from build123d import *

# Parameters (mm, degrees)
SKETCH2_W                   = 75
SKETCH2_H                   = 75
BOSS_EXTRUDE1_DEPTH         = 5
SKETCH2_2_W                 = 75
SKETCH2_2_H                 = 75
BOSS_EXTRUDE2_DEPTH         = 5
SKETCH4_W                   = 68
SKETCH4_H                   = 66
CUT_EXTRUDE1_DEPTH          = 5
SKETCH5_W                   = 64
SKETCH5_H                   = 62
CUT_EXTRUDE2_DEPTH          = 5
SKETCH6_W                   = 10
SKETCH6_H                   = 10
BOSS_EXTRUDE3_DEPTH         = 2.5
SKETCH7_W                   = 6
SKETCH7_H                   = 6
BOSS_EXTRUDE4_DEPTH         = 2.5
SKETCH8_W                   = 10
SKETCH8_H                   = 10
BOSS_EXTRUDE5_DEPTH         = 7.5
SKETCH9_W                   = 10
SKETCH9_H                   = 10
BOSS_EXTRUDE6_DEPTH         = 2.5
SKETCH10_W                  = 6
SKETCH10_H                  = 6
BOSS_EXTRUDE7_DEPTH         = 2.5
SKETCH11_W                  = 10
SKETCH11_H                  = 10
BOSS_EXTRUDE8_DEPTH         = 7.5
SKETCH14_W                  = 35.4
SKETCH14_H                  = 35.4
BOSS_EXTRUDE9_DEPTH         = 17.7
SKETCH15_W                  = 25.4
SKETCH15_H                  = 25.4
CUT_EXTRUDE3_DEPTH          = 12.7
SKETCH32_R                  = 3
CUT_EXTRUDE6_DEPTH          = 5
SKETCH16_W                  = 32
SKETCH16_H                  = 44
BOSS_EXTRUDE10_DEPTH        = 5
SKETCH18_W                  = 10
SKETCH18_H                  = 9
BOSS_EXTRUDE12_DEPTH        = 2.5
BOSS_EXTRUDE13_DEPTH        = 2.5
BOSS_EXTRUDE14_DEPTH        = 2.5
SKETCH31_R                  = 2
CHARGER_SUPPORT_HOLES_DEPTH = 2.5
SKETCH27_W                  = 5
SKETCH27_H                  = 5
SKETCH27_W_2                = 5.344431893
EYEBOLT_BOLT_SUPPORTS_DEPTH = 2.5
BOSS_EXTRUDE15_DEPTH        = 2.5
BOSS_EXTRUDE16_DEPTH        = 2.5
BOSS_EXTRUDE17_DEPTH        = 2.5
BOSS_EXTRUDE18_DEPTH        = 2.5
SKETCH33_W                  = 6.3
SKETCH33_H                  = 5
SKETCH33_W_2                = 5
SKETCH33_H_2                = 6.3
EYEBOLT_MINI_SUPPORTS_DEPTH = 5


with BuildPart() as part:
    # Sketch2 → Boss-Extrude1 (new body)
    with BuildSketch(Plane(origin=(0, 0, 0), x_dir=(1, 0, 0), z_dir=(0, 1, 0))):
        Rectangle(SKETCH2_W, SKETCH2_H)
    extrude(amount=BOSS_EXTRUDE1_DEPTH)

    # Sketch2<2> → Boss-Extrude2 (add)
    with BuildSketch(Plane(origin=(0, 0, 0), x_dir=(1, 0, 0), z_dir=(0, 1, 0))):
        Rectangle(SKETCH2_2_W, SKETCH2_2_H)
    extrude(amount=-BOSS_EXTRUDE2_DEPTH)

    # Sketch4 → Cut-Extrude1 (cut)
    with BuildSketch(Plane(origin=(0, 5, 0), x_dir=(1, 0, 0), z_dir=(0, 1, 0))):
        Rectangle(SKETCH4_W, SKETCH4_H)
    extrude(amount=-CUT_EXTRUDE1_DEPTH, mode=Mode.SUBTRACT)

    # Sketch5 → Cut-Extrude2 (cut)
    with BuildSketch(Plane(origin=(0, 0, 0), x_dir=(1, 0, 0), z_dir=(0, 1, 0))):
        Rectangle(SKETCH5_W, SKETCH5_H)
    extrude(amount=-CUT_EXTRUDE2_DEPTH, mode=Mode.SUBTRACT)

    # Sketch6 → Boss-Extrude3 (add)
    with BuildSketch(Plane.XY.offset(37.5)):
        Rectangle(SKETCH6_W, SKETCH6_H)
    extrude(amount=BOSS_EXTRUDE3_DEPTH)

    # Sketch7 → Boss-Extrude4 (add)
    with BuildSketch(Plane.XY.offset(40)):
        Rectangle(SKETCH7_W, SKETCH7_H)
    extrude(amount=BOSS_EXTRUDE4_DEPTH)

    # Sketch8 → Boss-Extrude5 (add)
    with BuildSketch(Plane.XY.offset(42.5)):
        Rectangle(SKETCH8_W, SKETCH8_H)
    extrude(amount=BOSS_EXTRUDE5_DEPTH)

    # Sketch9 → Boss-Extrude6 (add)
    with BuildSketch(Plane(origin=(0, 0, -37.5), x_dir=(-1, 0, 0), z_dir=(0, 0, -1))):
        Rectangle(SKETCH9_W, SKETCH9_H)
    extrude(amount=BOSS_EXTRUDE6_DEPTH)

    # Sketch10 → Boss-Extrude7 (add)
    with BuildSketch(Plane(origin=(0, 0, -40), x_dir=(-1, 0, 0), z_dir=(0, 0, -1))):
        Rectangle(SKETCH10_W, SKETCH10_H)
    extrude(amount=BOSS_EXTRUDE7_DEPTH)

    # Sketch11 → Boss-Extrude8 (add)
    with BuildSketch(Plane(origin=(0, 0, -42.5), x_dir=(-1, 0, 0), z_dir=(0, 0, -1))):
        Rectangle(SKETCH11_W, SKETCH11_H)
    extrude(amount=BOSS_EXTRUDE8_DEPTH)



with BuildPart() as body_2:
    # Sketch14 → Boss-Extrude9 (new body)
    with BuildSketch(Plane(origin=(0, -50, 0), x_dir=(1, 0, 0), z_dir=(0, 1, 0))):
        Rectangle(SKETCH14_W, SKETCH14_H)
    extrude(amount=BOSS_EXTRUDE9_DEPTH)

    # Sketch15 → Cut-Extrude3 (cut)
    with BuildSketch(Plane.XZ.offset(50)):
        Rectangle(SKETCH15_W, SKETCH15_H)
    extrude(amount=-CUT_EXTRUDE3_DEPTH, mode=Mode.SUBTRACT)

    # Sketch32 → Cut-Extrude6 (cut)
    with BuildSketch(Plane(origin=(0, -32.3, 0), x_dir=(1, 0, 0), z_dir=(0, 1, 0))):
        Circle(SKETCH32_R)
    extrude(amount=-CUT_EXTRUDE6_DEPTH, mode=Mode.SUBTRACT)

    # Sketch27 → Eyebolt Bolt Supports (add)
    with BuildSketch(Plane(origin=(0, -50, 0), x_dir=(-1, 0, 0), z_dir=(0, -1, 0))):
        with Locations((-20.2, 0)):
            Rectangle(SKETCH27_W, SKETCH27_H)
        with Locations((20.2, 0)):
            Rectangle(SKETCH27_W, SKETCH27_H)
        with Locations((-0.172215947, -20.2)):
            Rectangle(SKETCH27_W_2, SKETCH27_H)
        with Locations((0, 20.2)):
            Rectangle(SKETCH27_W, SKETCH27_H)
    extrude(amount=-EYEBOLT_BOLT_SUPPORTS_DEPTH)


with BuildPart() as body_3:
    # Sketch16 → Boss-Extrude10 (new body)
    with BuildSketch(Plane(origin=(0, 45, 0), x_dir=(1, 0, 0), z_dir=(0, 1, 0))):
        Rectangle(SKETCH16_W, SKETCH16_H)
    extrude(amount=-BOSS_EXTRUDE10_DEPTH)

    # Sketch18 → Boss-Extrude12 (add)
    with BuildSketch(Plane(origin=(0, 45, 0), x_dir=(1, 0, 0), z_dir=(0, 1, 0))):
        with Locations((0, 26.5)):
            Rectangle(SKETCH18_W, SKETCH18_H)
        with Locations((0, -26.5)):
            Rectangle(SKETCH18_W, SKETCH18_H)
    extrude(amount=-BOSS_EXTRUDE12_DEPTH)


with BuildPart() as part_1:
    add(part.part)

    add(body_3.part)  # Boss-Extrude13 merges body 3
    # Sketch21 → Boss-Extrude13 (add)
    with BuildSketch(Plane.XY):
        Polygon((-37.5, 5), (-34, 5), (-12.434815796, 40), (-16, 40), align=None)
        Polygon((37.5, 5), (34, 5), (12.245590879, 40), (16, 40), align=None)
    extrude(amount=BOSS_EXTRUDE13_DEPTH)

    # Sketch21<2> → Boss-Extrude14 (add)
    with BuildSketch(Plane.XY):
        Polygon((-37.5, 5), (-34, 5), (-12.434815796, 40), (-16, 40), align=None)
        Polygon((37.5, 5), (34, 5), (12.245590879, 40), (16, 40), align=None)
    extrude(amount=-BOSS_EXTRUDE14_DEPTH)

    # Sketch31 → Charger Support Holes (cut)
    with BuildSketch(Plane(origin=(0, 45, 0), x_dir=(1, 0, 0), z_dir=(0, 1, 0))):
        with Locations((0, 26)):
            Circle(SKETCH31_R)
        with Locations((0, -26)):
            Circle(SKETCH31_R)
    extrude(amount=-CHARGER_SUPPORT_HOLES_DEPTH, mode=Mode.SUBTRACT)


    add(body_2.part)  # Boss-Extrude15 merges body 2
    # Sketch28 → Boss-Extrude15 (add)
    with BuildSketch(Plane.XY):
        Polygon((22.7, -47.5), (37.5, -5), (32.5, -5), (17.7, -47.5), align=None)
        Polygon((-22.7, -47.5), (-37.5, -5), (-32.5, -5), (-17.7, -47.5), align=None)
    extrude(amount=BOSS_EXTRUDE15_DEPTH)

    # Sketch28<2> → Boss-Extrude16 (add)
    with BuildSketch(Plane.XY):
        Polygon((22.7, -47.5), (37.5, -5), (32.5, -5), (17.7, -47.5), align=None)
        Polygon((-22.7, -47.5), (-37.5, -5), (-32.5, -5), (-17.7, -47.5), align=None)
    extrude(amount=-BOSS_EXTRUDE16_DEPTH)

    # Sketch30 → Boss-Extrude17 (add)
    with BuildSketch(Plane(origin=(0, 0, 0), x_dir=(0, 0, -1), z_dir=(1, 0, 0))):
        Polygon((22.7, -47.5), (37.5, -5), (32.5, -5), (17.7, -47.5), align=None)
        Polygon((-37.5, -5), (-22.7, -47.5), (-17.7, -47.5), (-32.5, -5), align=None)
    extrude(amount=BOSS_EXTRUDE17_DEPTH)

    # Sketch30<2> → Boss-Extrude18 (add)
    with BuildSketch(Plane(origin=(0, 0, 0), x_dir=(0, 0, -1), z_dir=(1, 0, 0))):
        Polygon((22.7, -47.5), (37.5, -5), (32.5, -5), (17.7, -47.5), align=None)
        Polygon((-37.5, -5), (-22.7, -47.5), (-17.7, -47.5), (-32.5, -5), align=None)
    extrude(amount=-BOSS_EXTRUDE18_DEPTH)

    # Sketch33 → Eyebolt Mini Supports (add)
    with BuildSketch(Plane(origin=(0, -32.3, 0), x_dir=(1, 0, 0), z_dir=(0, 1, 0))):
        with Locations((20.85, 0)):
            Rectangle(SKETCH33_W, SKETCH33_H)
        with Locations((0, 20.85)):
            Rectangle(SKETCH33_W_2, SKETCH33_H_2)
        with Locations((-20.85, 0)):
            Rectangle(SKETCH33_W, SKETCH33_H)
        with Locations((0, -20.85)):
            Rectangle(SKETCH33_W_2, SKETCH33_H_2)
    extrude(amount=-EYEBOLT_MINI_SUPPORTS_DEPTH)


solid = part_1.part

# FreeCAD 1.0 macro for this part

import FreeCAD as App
import Part
import Sketcher


def add_polygon(sketch, points):
    """Adds a closed chain of lines whose ends are joined by coincident constraints."""
    first, n = sketch.GeometryCount, len(points)
    for a, b in zip(points, points[1:] + points[:1]):
        sketch.addGeometry(Part.LineSegment(App.Vector(*a, 0), App.Vector(*b, 0)), False)
    for i in range(n):
        sketch.addConstraint(Sketcher.Constraint("Coincident", first + i, 2, first + (i + 1) % n, 1))

doc = App.newDocument("Part")
params = doc.addObject("Spreadsheet::Sheet", "Params")
for row, (alias, value) in enumerate([
    ("sketch1_width", "75 mm"),
    ("pad1_length", "5 mm"),
    ("sketch2_width", "75 mm"),
    ("pad2_length", "5 mm"),
    ("sketch3_width", "68 mm"),
    ("sketch3_height", "66 mm"),
    ("pocket1_length", "5 mm"),
    ("sketch4_width", "64 mm"),
    ("sketch4_height", "62 mm"),
    ("pocket2_length", "5 mm"),
    ("sketch5_width", "10 mm"),
    ("pad3_length", "2.5 mm"),
    ("sketch6_width", "6 mm"),
    ("pad4_length", "2.5 mm"),
    ("sketch7_width", "10 mm"),
    ("pad5_length", "7.5 mm"),
    ("sketch8_width", "10 mm"),
    ("pad6_length", "2.5 mm"),
    ("sketch9_width", "6 mm"),
    ("pad7_length", "2.5 mm"),
    ("sketch10_width", "10 mm"),
    ("pad8_length", "7.5 mm"),
    ("sketch11_width", "35.4 mm"),
    ("pad9_length", "17.7 mm"),
    ("sketch12_width", "25.4 mm"),
    ("pocket3_length", "12.7 mm"),
    ("sketch13_diameter", "6 mm"),
    ("pocket4_length", "5 mm"),
    ("sketch14_width", "5 mm"),
    ("pad10_length", "2.5 mm"),
    ("sketch15_width", "32 mm"),
    ("sketch15_height", "44 mm"),
    ("pad11_length", "5 mm"),
    ("sketch16_width", "10 mm"),
    ("sketch16_height", "9 mm"),
    ("pad12_length", "2.5 mm"),
    ("sketch17_width", "3.5 mm"),
    ("pad13_length", "2.5 mm"),
    ("sketch18_width", "3.5 mm"),
    ("pad14_length", "2.5 mm"),
    ("sketch19_diameter", "4 mm"),
    ("pocket5_length", "2.5 mm"),
    ("sketch20_width", "5 mm"),
    ("pad15_length", "2.5 mm"),
    ("sketch21_width", "5 mm"),
    ("pad16_length", "2.5 mm"),
    ("sketch22_height", "5 mm"),
    ("pad17_length", "2.5 mm"),
    ("sketch23_height", "5 mm"),
    ("pad18_length", "2.5 mm"),
    ("sketch24_width", "5 mm"),
    ("sketch24_width2", "6.3 mm"),
    ("pad19_length", "5 mm"),
], start=1):
    params.set(f"A{row}", alias)
    params.set(f"B{row}", "=" + value)
    params.setAlias(f"B{row}", alias)

body = doc.addObject("PartDesign::Body", "Body")

# Sketch on XZ plane
sketch1 = doc.addObject("Sketcher::SketchObject", "Sketch")
body.addObject(sketch1)
sketch1.AttachmentSupport = (doc.XZ_Plane, [""])
sketch1.MapMode = "FlatFace"
add_polygon(sketch1, [(-38, -38), (-38, 38), (38, 38), (38, -38)])  # lines 0-3
sketch1.addConstraint([
    Sketcher.Constraint("Vertical", 0),
    Sketcher.Constraint("Horizontal", 1),
    Sketcher.Constraint("Vertical", 2),
    Sketcher.Constraint("Horizontal", 3),
    Sketcher.Constraint("Symmetric", 0, 2, 2, 2, -1, 1),
    Sketcher.Constraint("Equal", 3, 0),
    Sketcher.Constraint("DistanceX", 1, 1, 1, 2, 75.0),
])
sketch1.setExpression("Constraints[10]", "Params.sketch1_width")
pad1 = doc.addObject("PartDesign::Pad", "Pad")
body.addObject(pad1)
pad1.Profile = sketch1
pad1.setExpression("Length", "Params.pad1_length")
pad1.Reversed = True

# Sketch on XZ plane
sketch2 = doc.addObject("Sketcher::SketchObject", "Sketch001")
body.addObject(sketch2)
sketch2.AttachmentSupport = (doc.XZ_Plane, [""])
sketch2.MapMode = "FlatFace"
add_polygon(sketch2, [(-38, -38), (-38, 38), (38, 38), (38, -38)])  # lines 0-3
sketch2.addConstraint([
    Sketcher.Constraint("Vertical", 0),
    Sketcher.Constraint("Horizontal", 1),
    Sketcher.Constraint("Vertical", 2),
    Sketcher.Constraint("Horizontal", 3),
    Sketcher.Constraint("Symmetric", 0, 2, 2, 2, -1, 1),
    Sketcher.Constraint("Equal", 3, 0),
    Sketcher.Constraint("DistanceX", 1, 1, 1, 2, 75.0),
])
sketch2.setExpression("Constraints[10]", "Params.sketch2_width")
pad2 = doc.addObject("PartDesign::Pad", "Pad001")
body.addObject(pad2)
pad2.Profile = sketch2
pad2.setExpression("Length", "Params.pad2_length")

# Sketch on XZ plane
sketch3 = doc.addObject("Sketcher::SketchObject", "Sketch002")
body.addObject(sketch3)
sketch3.AttachmentSupport = (doc.XZ_Plane, [""])
sketch3.MapMode = "FlatFace"
sketch3.AttachmentOffset = App.Placement(App.Vector(0, 0, -5), App.Rotation())
add_polygon(sketch3, [(-34, -33), (-34, 33), (34, 33), (34, -33)])  # lines 0-3
sketch3.addConstraint([
    Sketcher.Constraint("Vertical", 0),
    Sketcher.Constraint("Horizontal", 1),
    Sketcher.Constraint("Vertical", 2),
    Sketcher.Constraint("Horizontal", 3),
    Sketcher.Constraint("Symmetric", 0, 2, 2, 2, -1, 1),
    Sketcher.Constraint("DistanceX", 1, 1, 1, 2, 68.0),
    Sketcher.Constraint("DistanceY", 0, 1, 0, 2, 66.0),
])
sketch3.setExpression("Constraints[9]", "Params.sketch3_width")
sketch3.setExpression("Constraints[10]", "Params.sketch3_height")
pocket1 = doc.addObject("PartDesign::Pocket", "Pocket")
body.addObject(pocket1)
pocket1.Profile = sketch3
pocket1.setExpression("Length", "Params.pocket1_length")
pocket1.Reversed = True

# Sketch on XZ plane
sketch4 = doc.addObject("Sketcher::SketchObject", "Sketch003")
body.addObject(sketch4)
sketch4.AttachmentSupport = (doc.XZ_Plane, [""])
sketch4.MapMode = "FlatFace"
add_polygon(sketch4, [(-32, -31), (-32, 31), (32, 31), (32, -31)])  # lines 0-3
sketch4.addConstraint([
    Sketcher.Constraint("Vertical", 0),
    Sketcher.Constraint("Horizontal", 1),
    Sketcher.Constraint("Vertical", 2),
    Sketcher.Constraint("Horizontal", 3),
    Sketcher.Constraint("Symmetric", 0, 2, 2, 2, -1, 1),
    Sketcher.Constraint("DistanceX", 1, 1, 1, 2, 64.0),
    Sketcher.Constraint("DistanceY", 0, 1, 0, 2, 62.0),
])
sketch4.setExpression("Constraints[9]", "Params.sketch4_width")
sketch4.setExpression("Constraints[10]", "Params.sketch4_height")
pocket2 = doc.addObject("PartDesign::Pocket", "Pocket001")
body.addObject(pocket2)
pocket2.Profile = sketch4
pocket2.setExpression("Length", "Params.pocket2_length")
pocket2.Reversed = True

# Sketch on XY plane
sketch5 = doc.addObject("Sketcher::SketchObject", "Sketch004")
body.addObject(sketch5)
sketch5.AttachmentSupport = (doc.XY_Plane, [""])
sketch5.MapMode = "FlatFace"
sketch5.AttachmentOffset = App.Placement(App.Vector(0, 0, 37.5), App.Rotation())
add_polygon(sketch5, [(-5, 5), (-5, -5), (5, -5), (5, 5)])  # lines 0-3
sketch5.addConstraint([
    Sketcher.Constraint("Vertical", 0),
    Sketcher.Constraint("Horizontal", 1),
    Sketcher.Constraint("Vertical", 2),
    Sketcher.Constraint("Horizontal", 3),
    Sketcher.Constraint("Symmetric", 0, 2, 2, 2, -1, 1),
    Sketcher.Constraint("Equal", 3, 0),
    Sketcher.Constraint("DistanceX", 1, 1, 1, 2, 10.0),
])
sketch5.setExpression("Constraints[10]", "Params.sketch5_width")
pad3 = doc.addObject("PartDesign::Pad", "Pad002")
body.addObject(pad3)
pad3.Profile = sketch5
pad3.setExpression("Length", "Params.pad3_length")

# Sketch on XY plane
sketch6 = doc.addObject("Sketcher::SketchObject", "Sketch005")
body.addObject(sketch6)
sketch6.AttachmentSupport = (doc.XY_Plane, [""])
sketch6.MapMode = "FlatFace"
sketch6.AttachmentOffset = App.Placement(App.Vector(0, 0, 40), App.Rotation())
add_polygon(sketch6, [(-3, 3), (-3, -3), (3, -3), (3, 3)])  # lines 0-3
sketch6.addConstraint([
    Sketcher.Constraint("Vertical", 0),
    Sketcher.Constraint("Horizontal", 1),
    Sketcher.Constraint("Vertical", 2),
    Sketcher.Constraint("Horizontal", 3),
    Sketcher.Constraint("Symmetric", 0, 2, 2, 2, -1, 1),
    Sketcher.Constraint("Equal", 3, 0),
    Sketcher.Constraint("DistanceX", 1, 1, 1, 2, 6.0),
])
sketch6.setExpression("Constraints[10]", "Params.sketch6_width")
pad4 = doc.addObject("PartDesign::Pad", "Pad003")
body.addObject(pad4)
pad4.Profile = sketch6
pad4.setExpression("Length", "Params.pad4_length")

# Sketch on XY plane
sketch7 = doc.addObject("Sketcher::SketchObject", "Sketch006")
body.addObject(sketch7)
sketch7.AttachmentSupport = (doc.XY_Plane, [""])
sketch7.MapMode = "FlatFace"
sketch7.AttachmentOffset = App.Placement(App.Vector(0, 0, 42.5), App.Rotation())
add_polygon(sketch7, [(-5, 5), (-5, -5), (5, -5), (5, 5)])  # lines 0-3
sketch7.addConstraint([
    Sketcher.Constraint("Vertical", 0),
    Sketcher.Constraint("Horizontal", 1),
    Sketcher.Constraint("Vertical", 2),
    Sketcher.Constraint("Horizontal", 3),
    Sketcher.Constraint("Symmetric", 0, 2, 2, 2, -1, 1),
    Sketcher.Constraint("Equal", 3, 0),
    Sketcher.Constraint("DistanceX", 1, 1, 1, 2, 10.0),
])
sketch7.setExpression("Constraints[10]", "Params.sketch7_width")
pad5 = doc.addObject("PartDesign::Pad", "Pad004")
body.addObject(pad5)
pad5.Profile = sketch7
pad5.setExpression("Length", "Params.pad5_length")

# Sketch on XY plane
sketch8 = doc.addObject("Sketcher::SketchObject", "Sketch007")
body.addObject(sketch8)
sketch8.AttachmentSupport = (doc.XY_Plane, [""])
sketch8.MapMode = "FlatFace"
sketch8.AttachmentOffset = App.Placement(App.Vector(0, 0, -37.5), App.Rotation())
add_polygon(sketch8, [(5, 5), (5, -5), (-5, -5), (-5, 5)])  # lines 0-3
sketch8.addConstraint([
    Sketcher.Constraint("Vertical", 0),
    Sketcher.Constraint("Horizontal", 1),
    Sketcher.Constraint("Vertical", 2),
    Sketcher.Constraint("Horizontal", 3),
    Sketcher.Constraint("Symmetric", 0, 2, 2, 2, -1, 1),
    Sketcher.Constraint("Equal", 3, 0),
    Sketcher.Constraint("DistanceX", 1, 2, 1, 1, 10.0),
])
sketch8.setExpression("Constraints[10]", "Params.sketch8_width")
pad6 = doc.addObject("PartDesign::Pad", "Pad005")
body.addObject(pad6)
pad6.Profile = sketch8
pad6.setExpression("Length", "Params.pad6_length")
pad6.Reversed = True

# Sketch on XY plane
sketch9 = doc.addObject("Sketcher::SketchObject", "Sketch008")
body.addObject(sketch9)
sketch9.AttachmentSupport = (doc.XY_Plane, [""])
sketch9.MapMode = "FlatFace"
sketch9.AttachmentOffset = App.Placement(App.Vector(0, 0, -40), App.Rotation())
add_polygon(sketch9, [(3, 3), (3, -3), (-3, -3), (-3, 3)])  # lines 0-3
sketch9.addConstraint([
    Sketcher.Constraint("Vertical", 0),
    Sketcher.Constraint("Horizontal", 1),
    Sketcher.Constraint("Vertical", 2),
    Sketcher.Constraint("Horizontal", 3),
    Sketcher.Constraint("Symmetric", 0, 2, 2, 2, -1, 1),
    Sketcher.Constraint("Equal", 3, 0),
    Sketcher.Constraint("DistanceX", 1, 2, 1, 1, 6.0),
])
sketch9.setExpression("Constraints[10]", "Params.sketch9_width")
pad7 = doc.addObject("PartDesign::Pad", "Pad006")
body.addObject(pad7)
pad7.Profile = sketch9
pad7.setExpression("Length", "Params.pad7_length")
pad7.Reversed = True

# Sketch on XY plane
sketch10 = doc.addObject("Sketcher::SketchObject", "Sketch009")
body.addObject(sketch10)
sketch10.AttachmentSupport = (doc.XY_Plane, [""])
sketch10.MapMode = "FlatFace"
sketch10.AttachmentOffset = App.Placement(App.Vector(0, 0, -42.5), App.Rotation())
add_polygon(sketch10, [(5, 5), (5, -5), (-5, -5), (-5, 5)])  # lines 0-3
sketch10.addConstraint([
    Sketcher.Constraint("Vertical", 0),
    Sketcher.Constraint("Horizontal", 1),
    Sketcher.Constraint("Vertical", 2),
    Sketcher.Constraint("Horizontal", 3),
    Sketcher.Constraint("Symmetric", 0, 2, 2, 2, -1, 1),
    Sketcher.Constraint("Equal", 3, 0),
    Sketcher.Constraint("DistanceX", 1, 2, 1, 1, 10.0),
])
sketch10.setExpression("Constraints[10]", "Params.sketch10_width")
pad8 = doc.addObject("PartDesign::Pad", "Pad007")
body.addObject(pad8)
pad8.Profile = sketch10
pad8.setExpression("Length", "Params.pad8_length")
pad8.Reversed = True
body2 = doc.addObject("PartDesign::Body", "Body001")

# Sketch on XZ plane
sketch11 = doc.addObject("Sketcher::SketchObject", "Sketch010")
body2.addObject(sketch11)
sketch11.AttachmentSupport = (doc.getObject("XZ_Plane001"), [""])
sketch11.MapMode = "FlatFace"
sketch11.AttachmentOffset = App.Placement(App.Vector(0, 0, 50), App.Rotation())
add_polygon(sketch11, [(-18, -18), (-18, 18), (18, 18), (18, -18)])  # lines 0-3
sketch11.addConstraint([
    Sketcher.Constraint("Vertical", 0),
    Sketcher.Constraint("Horizontal", 1),
    Sketcher.Constraint("Vertical", 2),
    Sketcher.Constraint("Horizontal", 3),
    Sketcher.Constraint("Symmetric", 0, 2, 2, 2, -1, 1),
    Sketcher.Constraint("Equal", 3, 0),
    Sketcher.Constraint("DistanceX", 1, 1, 1, 2, 35.4),
])
sketch11.setExpression("Constraints[10]", "Params.sketch11_width")
pad9 = doc.addObject("PartDesign::Pad", "Pad008")
body2.addObject(pad9)
pad9.Profile = sketch11
pad9.setExpression("Length", "Params.pad9_length")
pad9.Reversed = True

# Sketch on XZ plane
sketch12 = doc.addObject("Sketcher::SketchObject", "Sketch011")
body2.addObject(sketch12)
sketch12.AttachmentSupport = (doc.getObject("XZ_Plane001"), [""])
sketch12.MapMode = "FlatFace"
sketch12.AttachmentOffset = App.Placement(App.Vector(0, 0, 50), App.Rotation())
add_polygon(sketch12, [(-13, 13), (-13, -13), (13, -13), (13, 13)])  # lines 0-3
sketch12.addConstraint([
    Sketcher.Constraint("Vertical", 0),
    Sketcher.Constraint("Horizontal", 1),
    Sketcher.Constraint("Vertical", 2),
    Sketcher.Constraint("Horizontal", 3),
    Sketcher.Constraint("Symmetric", 0, 2, 2, 2, -1, 1),
    Sketcher.Constraint("Equal", 3, 0),
    Sketcher.Constraint("DistanceX", 1, 1, 1, 2, 25.4),
])
sketch12.setExpression("Constraints[10]", "Params.sketch12_width")
pocket3 = doc.addObject("PartDesign::Pocket", "Pocket002")
body2.addObject(pocket3)
pocket3.Profile = sketch12
pocket3.setExpression("Length", "Params.pocket3_length")

# Sketch on XZ plane
sketch13 = doc.addObject("Sketcher::SketchObject", "Sketch012")
body2.addObject(sketch13)
sketch13.AttachmentSupport = (doc.getObject("XZ_Plane001"), [""])
sketch13.MapMode = "FlatFace"
sketch13.AttachmentOffset = App.Placement(App.Vector(0, 0, 32.3), App.Rotation())
sketch13.addGeometry(Part.Circle(App.Vector(0, 0, 0), App.Vector(0, 0, 1), 3), False)
sketch13.addConstraint([
    Sketcher.Constraint("Coincident", 0, 3, -1, 1),
    Sketcher.Constraint("Diameter", 0, 6.0),
])
sketch13.setExpression("Constraints[1]", "Params.sketch13_diameter")
pocket4 = doc.addObject("PartDesign::Pocket", "Pocket003")
body2.addObject(pocket4)
pocket4.Profile = sketch13
pocket4.setExpression("Length", "Params.pocket4_length")
pocket4.Reversed = True

# Sketch on XZ plane
sketch14 = doc.addObject("Sketcher::SketchObject", "Sketch013")
body2.addObject(sketch14)
sketch14.AttachmentSupport = (doc.getObject("XZ_Plane001"), [""])
sketch14.MapMode = "FlatFace"
sketch14.AttachmentOffset = App.Placement(App.Vector(0, 0, 50), App.Rotation())
add_polygon(sketch14, [(23, -2), (23, 2), (18, 2), (18, -2)])  # lines 0-3
add_polygon(sketch14, [(-18, -2), (-18, 2), (-23, 2), (-23, -2)])  # lines 4-7
add_polygon(sketch14, [(3, 18), (3, 23), (-2, 23), (-2, 18)])  # lines 8-11
add_polygon(sketch14, [(2, -23), (2, -18), (-2, -18), (-2, -23)])  # lines 12-15
sketch14.addConstraint([
    Sketcher.Constraint("Vertical", 0),
    Sketcher.Constraint("Horizontal", 1),
    Sketcher.Constraint("Vertical", 2),
    Sketcher.Constraint("Horizontal", 3),
    Sketcher.Constraint("Vertical", 4),
    Sketcher.Constraint("Horizontal", 5),
    Sketcher.Constraint("Vertical", 6),
    Sketcher.Constraint("Horizontal", 7),
    Sketcher.Constraint("Vertical", 8),
    Sketcher.Constraint("Horizontal", 9),
    Sketcher.Constraint("Vertical", 10),
    Sketcher.Constraint("Horizontal", 11),
    Sketcher.Constraint("Vertical", 12),
    Sketcher.Constraint("Horizontal", 13),
    Sketcher.Constraint("Vertical", 14),
    Sketcher.Constraint("Horizontal", 15),
    Sketcher.Constraint("Symmetric", 2, 2, 4, 2, -1, 1),
    Sketcher.Constraint("Symmetric", 0, 2, 6, 2, -1, 1),
    Sketcher.Constraint("Symmetric", 10, 2, 12, 2, -1, 1),
    Sketcher.Constraint("Symmetric", 9, 2, 14, 2, -1),
    Sketcher.Constraint("Horizontal", 1, 2, 4, 2),
    Sketcher.Constraint("Equal", 7, 13),
    Sketcher.Constraint("Equal", 15, 0),
    Sketcher.Constraint("Equal", 6, 8),
    Sketcher.Constraint("DistanceX", 1, 2, 1, 1, 5.0),
    Sketcher.Constraint("DistanceX", -1, 1, 0, 2, 22.7),
    Sketcher.Constraint("DistanceY", -1, 1, 8, 2, 22.7),
    Sketcher.Constraint("DistanceX", 9, 2, 9, 1, 5.344432),
])
sketch14.setExpression("Constraints[40]", "Params.sketch14_width")
pad10 = doc.addObject("PartDesign::Pad", "Pad009")
body2.addObject(pad10)
pad10.Profile = sketch14
pad10.setExpression("Length", "Params.pad10_length")
pad10.Reversed = True
body3 = doc.addObject("PartDesign::Body", "Body002")

# Sketch on XZ plane
sketch15 = doc.addObject("Sketcher::SketchObject", "Sketch014")
body3.addObject(sketch15)
sketch15.AttachmentSupport = (doc.getObject("XZ_Plane002"), [""])
sketch15.MapMode = "FlatFace"
sketch15.AttachmentOffset = App.Placement(App.Vector(0, 0, -45), App.Rotation())
add_polygon(sketch15, [(-16, -22), (-16, 22), (16, 22), (16, -22)])  # lines 0-3
sketch15.addConstraint([
    Sketcher.Constraint("Vertical", 0),
    Sketcher.Constraint("Horizontal", 1),
    Sketcher.Constraint("Vertical", 2),
    Sketcher.Constraint("Horizontal", 3),
    Sketcher.Constraint("Symmetric", 0, 2, 2, 2, -1, 1),
    Sketcher.Constraint("DistanceX", 1, 1, 1, 2, 32.0),
    Sketcher.Constraint("DistanceY", 0, 1, 0, 2, 44.0),
])
sketch15.setExpression("Constraints[9]", "Params.sketch15_width")
sketch15.setExpression("Constraints[10]", "Params.sketch15_height")
pad11 = doc.addObject("PartDesign::Pad", "Pad010")
body3.addObject(pad11)
pad11.Profile = sketch15
pad11.setExpression("Length", "Params.pad11_length")

# Sketch on XZ plane
sketch16 = doc.addObject("Sketcher::SketchObject", "Sketch015")
body3.addObject(sketch16)
sketch16.AttachmentSupport = (doc.getObject("XZ_Plane002"), [""])
sketch16.MapMode = "FlatFace"
sketch16.AttachmentOffset = App.Placement(App.Vector(0, 0, -45), App.Rotation())
add_polygon(sketch16, [(-5, -31), (-5, -22), (5, -22), (5, -31)])  # lines 0-3
add_polygon(sketch16, [(-5, 22), (-5, 31), (5, 31), (5, 22)])  # lines 4-7
sketch16.addConstraint([
    Sketcher.Constraint("Vertical", 0),
    Sketcher.Constraint("Horizontal", 1),
    Sketcher.Constraint("Vertical", 2),
    Sketcher.Constraint("Horizontal", 3),
    Sketcher.Constraint("Vertical", 4),
    Sketcher.Constraint("Horizontal", 5),
    Sketcher.Constraint("Vertical", 6),
    Sketcher.Constraint("Horizontal", 7),
    Sketcher.Constraint("Symmetric", 2, 2, 4, 2, -1, 1),
    Sketcher.Constraint("Symmetric", 0, 2, 6, 2, -1, 1),
    Sketcher.Constraint("Vertical", 3, 2, 4, 2),
    Sketcher.Constraint("DistanceX", 1, 1, 1, 2, 10.0),
    Sketcher.Constraint("DistanceY", 0, 1, 0, 2, 9.0),
    Sketcher.Constraint("DistanceY", 0, 2, -1, 1, 22.0),
])
sketch16.setExpression("Constraints[19]", "Params.sketch16_width")
sketch16.setExpression("Constraints[20]", "Params.sketch16_height")
pad12 = doc.addObject("PartDesign::Pad", "Pad011")
body3.addObject(pad12)
pad12.Profile = sketch16
pad12.setExpression("Length", "Params.pad12_length")
body.AllowCompound = True
doc.recompute()

boolean = doc.addObject("PartDesign::Boolean", "Boolean")
body.addObject(boolean)
boolean.Type = "Fuse"
boolean.addObjects([body3])

# Sketch on XY plane
sketch17 = doc.addObject("Sketcher::SketchObject", "Sketch016")
body.addObject(sketch17)
sketch17.AttachmentSupport = (doc.XY_Plane, [""])
sketch17.MapMode = "FlatFace"
add_polygon(sketch17, [(-37.5, 5), (-34, 5), (-12.4, 40), (-16, 40)])  # lines 0-3
add_polygon(sketch17, [(34, 5), (37.5, 5), (16, 40), (12.2, 40)])  # lines 4-7
sketch17.addConstraint([
    Sketcher.Constraint("Horizontal", 0),
    Sketcher.Constraint("Horizontal", 2),
    Sketcher.Constraint("Horizontal", 4),
    Sketcher.Constraint("Horizontal", 6),
    Sketcher.Constraint("Symmetric", 3, 2, 4, 2, -2),
    Sketcher.Constraint("Symmetric", 2, 2, 5, 2, -2),
    Sketcher.Constraint("Equal", 0, 4),
    Sketcher.Constraint("DistanceX", 0, 1, 0, 2, 3.5),
    Sketcher.Constraint("DistanceX", 0, 2, -1, 1, 34.0),
    Sketcher.Constraint("DistanceY", -1, 1, 0, 2, 5.0),
    Sketcher.Constraint("DistanceY", -1, 1, 1, 2, 40.0),
    Sketcher.Constraint("DistanceX", 2, 2, -1, 1, 16.0),
    Sketcher.Constraint("DistanceX", 6, 2, 6, 1, 3.754409),
    Sketcher.Constraint("DistanceX", 2, 2, 2, 1, 3.565184),
])
sketch17.setExpression("Constraints[15]", "Params.sketch17_width")
pad13 = doc.addObject("PartDesign::Pad", "Pad012")
body.addObject(pad13)
pad13.Profile = sketch17
pad13.setExpression("Length", "Params.pad13_length")

# Sketch on XY plane
sketch18 = doc.addObject("Sketcher::SketchObject", "Sketch017")
body.addObject(sketch18)
sketch18.AttachmentSupport = (doc.XY_Plane, [""])
sketch18.MapMode = "FlatFace"
add_polygon(sketch18, [(-37.5, 5), (-34, 5), (-12.4, 40), (-16, 40)])  # lines 0-3
add_polygon(sketch18, [(34, 5), (37.5, 5), (16, 40), (12.2, 40)])  # lines 4-7
sketch18.addConstraint([
    Sketcher.Constraint("Horizontal", 0),
    Sketcher.Constraint("Horizontal", 2),
    Sketcher.Constraint("Horizontal", 4),
    Sketcher.Constraint("Horizontal", 6),
    Sketcher.Constraint("Symmetric", 3, 2, 4, 2, -2),
    Sketcher.Constraint("Symmetric", 2, 2, 5, 2, -2),
    Sketcher.Constraint("Equal", 0, 4),
    Sketcher.Constraint("DistanceX", 0, 1, 0, 2, 3.5),
    Sketcher.Constraint("DistanceX", 0, 2, -1, 1, 34.0),
    Sketcher.Constraint("DistanceY", -1, 1, 0, 2, 5.0),
    Sketcher.Constraint("DistanceY", -1, 1, 1, 2, 40.0),
    Sketcher.Constraint("DistanceX", 2, 2, -1, 1, 16.0),
    Sketcher.Constraint("DistanceX", 6, 2, 6, 1, 3.754409),
    Sketcher.Constraint("DistanceX", 2, 2, 2, 1, 3.565184),
])
sketch18.setExpression("Constraints[15]", "Params.sketch18_width")
pad14 = doc.addObject("PartDesign::Pad", "Pad013")
body.addObject(pad14)
pad14.Profile = sketch18
pad14.setExpression("Length", "Params.pad14_length")
pad14.Reversed = True

# Sketch on XZ plane
sketch19 = doc.addObject("Sketcher::SketchObject", "Sketch018")
body.addObject(sketch19)
sketch19.AttachmentSupport = (doc.XZ_Plane, [""])
sketch19.MapMode = "FlatFace"
sketch19.AttachmentOffset = App.Placement(App.Vector(0, 0, -45), App.Rotation())
sketch19.addGeometry([
    Part.Circle(App.Vector(0, -26, 0), App.Vector(0, 0, 1), 2),
    Part.Circle(App.Vector(0, 26, 0), App.Vector(0, 0, 1), 2),
], False)
sketch19.addConstraint([
    Sketcher.Constraint("Equal", 0, 1),
    Sketcher.Constraint("Symmetric", 0, 3, 1, 3, -1, 1),
    Sketcher.Constraint("PointOnObject", 0, 3, -2),
    Sketcher.Constraint("Diameter", 0, 4.0),
    Sketcher.Constraint("DistanceY", 0, 3, -1, 1, 26.0),
])
sketch19.setExpression("Constraints[3]", "Params.sketch19_diameter")
pocket5 = doc.addObject("PartDesign::Pocket", "Pocket004")
body.addObject(pocket5)
pocket5.Profile = sketch19
pocket5.setExpression("Length", "Params.pocket5_length")
pocket5.Reversed = True
doc.recompute()

boolean2 = doc.addObject("PartDesign::Boolean", "Boolean001")
body.addObject(boolean2)
boolean2.Type = "Fuse"
boolean2.addObjects([body2])

# Sketch on XY plane
sketch20 = doc.addObject("Sketcher::SketchObject", "Sketch019")
body.addObject(sketch20)
sketch20.AttachmentSupport = (doc.XY_Plane, [""])
sketch20.MapMode = "FlatFace"
add_polygon(sketch20, [(23, -48), (38, -5), (32, -5), (18, -48)])  # lines 0-3
add_polygon(sketch20, [(-38, -5), (-23, -48), (-18, -48), (-32, -5)])  # lines 4-7
sketch20.addConstraint([
    Sketcher.Constraint("Horizontal", 1),
    Sketcher.Constraint("Horizontal", 3),
    Sketcher.Constraint("Horizontal", 5),
    Sketcher.Constraint("Horizontal", 7),
    Sketcher.Constraint("Symmetric", 3, 2, 4, 2, -2),
    Sketcher.Constraint("Symmetric", 1, 2, 6, 2, -2),
    Sketcher.Constraint("Parallel", 0, 2),
    Sketcher.Constraint("Parallel", 4, 6),
    Sketcher.Constraint("Equal", 3, 5),
    Sketcher.Constraint("DistanceX", 1, 2, 1, 1, 5.0),
    Sketcher.Constraint("DistanceY", 0, 2, -1, 1, 5.0),
    Sketcher.Constraint("DistanceX", 6, 2, 1, 2, 65.0),
    Sketcher.Constraint("DistanceX", -1, 1, 2, 2, 17.7),
    Sketcher.Constraint("DistanceY", 2, 2, -1, 1, 47.5),
])
sketch20.setExpression("Constraints[17]", "Params.sketch20_width")
pad15 = doc.addObject("PartDesign::Pad", "Pad014")
body.addObject(pad15)
pad15.Profile = sketch20
pad15.setExpression("Length", "Params.pad15_length")

# Sketch on XY plane
sketch21 = doc.addObject("Sketcher::SketchObject", "Sketch020")
body.addObject(sketch21)
sketch21.AttachmentSupport = (doc.XY_Plane, [""])
sketch21.MapMode = "FlatFace"
add_polygon(sketch21, [(23, -48), (38, -5), (32, -5), (18, -48)])  # lines 0-3
add_polygon(sketch21, [(-38, -5), (-23, -48), (-18, -48), (-32, -5)])  # lines 4-7
sketch21.addConstraint([
    Sketcher.Constraint("Horizontal", 1),
    Sketcher.Constraint("Horizontal", 3),
    Sketcher.Constraint("Horizontal", 5),
    Sketcher.Constraint("Horizontal", 7),
    Sketcher.Constraint("Symmetric", 3, 2, 4, 2, -2),
    Sketcher.Constraint("Symmetric", 1, 2, 6, 2, -2),
    Sketcher.Constraint("Parallel", 0, 2),
    Sketcher.Constraint("Parallel", 4, 6),
    Sketcher.Constraint("Equal", 3, 5),
    Sketcher.Constraint("DistanceX", 1, 2, 1, 1, 5.0),
    Sketcher.Constraint("DistanceY", 0, 2, -1, 1, 5.0),
    Sketcher.Constraint("DistanceX", 6, 2, 1, 2, 65.0),
    Sketcher.Constraint("DistanceX", -1, 1, 2, 2, 17.7),
    Sketcher.Constraint("DistanceY", 2, 2, -1, 1, 47.5),
])
sketch21.setExpression("Constraints[17]", "Params.sketch21_width")
pad16 = doc.addObject("PartDesign::Pad", "Pad015")
body.addObject(pad16)
pad16.Profile = sketch21
pad16.setExpression("Length", "Params.pad16_length")
pad16.Reversed = True

# Sketch on YZ plane
sketch22 = doc.addObject("Sketcher::SketchObject", "Sketch021")
body.addObject(sketch22)
sketch22.AttachmentSupport = (doc.YZ_Plane, [""])
sketch22.MapMode = "FlatFace"
add_polygon(sketch22, [(-48, -23), (-5, -38), (-5, -32), (-48, -18)])  # lines 0-3
add_polygon(sketch22, [(-5, 38), (-48, 23), (-48, 18), (-5, 32)])  # lines 4-7
sketch22.addConstraint([
    Sketcher.Constraint("Vertical", 1),
    Sketcher.Constraint("Vertical", 3),
    Sketcher.Constraint("Vertical", 5),
    Sketcher.Constraint("Vertical", 7),
    Sketcher.Constraint("Symmetric", 3, 2, 4, 2, -1),
    Sketcher.Constraint("Symmetric", 1, 2, 6, 2, -1),
    Sketcher.Constraint("Parallel", 0, 2),
    Sketcher.Constraint("Parallel", 4, 6),
    Sketcher.Constraint("Equal", 3, 5),
    Sketcher.Constraint("DistanceY", 1, 1, 1, 2, 5.0),
    Sketcher.Constraint("DistanceX", 0, 2, -1, 1, 5.0),
    Sketcher.Constraint("DistanceY", 1, 2, 6, 2, 65.0),
    Sketcher.Constraint("DistanceX", 2, 2, -1, 1, 47.5),
    Sketcher.Constraint("DistanceY", 2, 2, -1, 1, 17.7),
])
sketch22.setExpression("Constraints[17]", "Params.sketch22_height")
pad17 = doc.addObject("PartDesign::Pad", "Pad016")
body.addObject(pad17)
pad17.Profile = sketch22
pad17.setExpression("Length", "Params.pad17_length")

# Sketch on YZ plane
sketch23 = doc.addObject("Sketcher::SketchObject", "Sketch022")
body.addObject(sketch23)
sketch23.AttachmentSupport = (doc.YZ_Plane, [""])
sketch23.MapMode = "FlatFace"
add_polygon(sketch23, [(-48, -23), (-5, -38), (-5, -32), (-48, -18)])  # lines 0-3
add_polygon(sketch23, [(-5, 38), (-48, 23), (-48, 18), (-5, 32)])  # lines 4-7
sketch23.addConstraint([
    Sketcher.Constraint("Vertical", 1),
    Sketcher.Constraint("Vertical", 3),
    Sketcher.Constraint("Vertical", 5),
    Sketcher.Constraint("Vertical", 7),
    Sketcher.Constraint("Symmetric", 3, 2, 4, 2, -1),
    Sketcher.Constraint("Symmetric", 1, 2, 6, 2, -1),
    Sketcher.Constraint("Parallel", 0, 2),
    Sketcher.Constraint("Parallel", 4, 6),
    Sketcher.Constraint("Equal", 3, 5),
    Sketcher.Constraint("DistanceY", 1, 1, 1, 2, 5.0),
    Sketcher.Constraint("DistanceX", 0, 2, -1, 1, 5.0),
    Sketcher.Constraint("DistanceY", 1, 2, 6, 2, 65.0),
    Sketcher.Constraint("DistanceX", 2, 2, -1, 1, 47.5),
    Sketcher.Constraint("DistanceY", 2, 2, -1, 1, 17.7),
])
sketch23.setExpression("Constraints[17]", "Params.sketch23_height")
pad18 = doc.addObject("PartDesign::Pad", "Pad017")
body.addObject(pad18)
pad18.Profile = sketch23
pad18.setExpression("Length", "Params.pad18_length")
pad18.Reversed = True

# Sketch on XZ plane
sketch24 = doc.addObject("Sketcher::SketchObject", "Sketch023")
body.addObject(sketch24)
sketch24.AttachmentSupport = (doc.XZ_Plane, [""])
sketch24.MapMode = "FlatFace"
sketch24.AttachmentOffset = App.Placement(App.Vector(0, 0, 32.3), App.Rotation())
add_polygon(sketch24, [(18, -2), (18, 2), (24, 2), (24, -2)])  # lines 0-3
add_polygon(sketch24, [(-2, -24), (-2, -18), (2, -18), (2, -24)])  # lines 4-7
add_polygon(sketch24, [(-24, -2), (-24, 2), (-18, 2), (-18, -2)])  # lines 8-11
add_polygon(sketch24, [(-2, 18), (-2, 24), (2, 24), (2, 18)])  # lines 12-15
sketch24.addConstraint([
    Sketcher.Constraint("Vertical", 0),
    Sketcher.Constraint("Horizontal", 1),
    Sketcher.Constraint("Vertical", 2),
    Sketcher.Constraint("Horizontal", 3),
    Sketcher.Constraint("Vertical", 4),
    Sketcher.Constraint("Horizontal", 5),
    Sketcher.Constraint("Vertical", 6),
    Sketcher.Constraint("Horizontal", 7),
    Sketcher.Constraint("Vertical", 8),
    Sketcher.Constraint("Horizontal", 9),
    Sketcher.Constraint("Vertical", 10),
    Sketcher.Constraint("Horizontal", 11),
    Sketcher.Constraint("Vertical", 12),
    Sketcher.Constraint("Horizontal", 13),
    Sketcher.Constraint("Vertical", 14),
    Sketcher.Constraint("Horizontal", 15),
    Sketcher.Constraint("Symmetric", 2, 2, 8, 2, -1, 1),
    Sketcher.Constraint("Symmetric", 0, 2, 10, 2, -1, 1),
    Sketcher.Constraint("Symmetric", 6, 2, 12, 2, -1, 1),
    Sketcher.Constraint("Symmetric", 4, 2, 14, 2, -1, 1),
    Sketcher.Constraint("Horizontal", 1, 2, 8, 2),
    Sketcher.Constraint("Vertical", 7, 2, 12, 2),
    Sketcher.Constraint("Equal", 15, 0),
    Sketcher.Constraint("Equal", 11, 4),
    Sketcher.Constraint("DistanceX", 5, 1, 5, 2, 5.0),
    Sketcher.Constraint("DistanceX", 1, 1, 1, 2, 6.3),
    Sketcher.Constraint("DistanceX", -1, 1, 1, 2, 24.0),
    Sketcher.Constraint("DistanceY", 6, 2, -1, 1, 24.0),
])
sketch24.setExpression("Constraints[40]", "Params.sketch24_width")
sketch24.setExpression("Constraints[41]", "Params.sketch24_width2")
pad19 = doc.addObject("PartDesign::Pad", "Pad018")
body.addObject(pad19)
pad19.Profile = sketch24
pad19.setExpression("Length", "Params.pad19_length")

doc.recompute()
